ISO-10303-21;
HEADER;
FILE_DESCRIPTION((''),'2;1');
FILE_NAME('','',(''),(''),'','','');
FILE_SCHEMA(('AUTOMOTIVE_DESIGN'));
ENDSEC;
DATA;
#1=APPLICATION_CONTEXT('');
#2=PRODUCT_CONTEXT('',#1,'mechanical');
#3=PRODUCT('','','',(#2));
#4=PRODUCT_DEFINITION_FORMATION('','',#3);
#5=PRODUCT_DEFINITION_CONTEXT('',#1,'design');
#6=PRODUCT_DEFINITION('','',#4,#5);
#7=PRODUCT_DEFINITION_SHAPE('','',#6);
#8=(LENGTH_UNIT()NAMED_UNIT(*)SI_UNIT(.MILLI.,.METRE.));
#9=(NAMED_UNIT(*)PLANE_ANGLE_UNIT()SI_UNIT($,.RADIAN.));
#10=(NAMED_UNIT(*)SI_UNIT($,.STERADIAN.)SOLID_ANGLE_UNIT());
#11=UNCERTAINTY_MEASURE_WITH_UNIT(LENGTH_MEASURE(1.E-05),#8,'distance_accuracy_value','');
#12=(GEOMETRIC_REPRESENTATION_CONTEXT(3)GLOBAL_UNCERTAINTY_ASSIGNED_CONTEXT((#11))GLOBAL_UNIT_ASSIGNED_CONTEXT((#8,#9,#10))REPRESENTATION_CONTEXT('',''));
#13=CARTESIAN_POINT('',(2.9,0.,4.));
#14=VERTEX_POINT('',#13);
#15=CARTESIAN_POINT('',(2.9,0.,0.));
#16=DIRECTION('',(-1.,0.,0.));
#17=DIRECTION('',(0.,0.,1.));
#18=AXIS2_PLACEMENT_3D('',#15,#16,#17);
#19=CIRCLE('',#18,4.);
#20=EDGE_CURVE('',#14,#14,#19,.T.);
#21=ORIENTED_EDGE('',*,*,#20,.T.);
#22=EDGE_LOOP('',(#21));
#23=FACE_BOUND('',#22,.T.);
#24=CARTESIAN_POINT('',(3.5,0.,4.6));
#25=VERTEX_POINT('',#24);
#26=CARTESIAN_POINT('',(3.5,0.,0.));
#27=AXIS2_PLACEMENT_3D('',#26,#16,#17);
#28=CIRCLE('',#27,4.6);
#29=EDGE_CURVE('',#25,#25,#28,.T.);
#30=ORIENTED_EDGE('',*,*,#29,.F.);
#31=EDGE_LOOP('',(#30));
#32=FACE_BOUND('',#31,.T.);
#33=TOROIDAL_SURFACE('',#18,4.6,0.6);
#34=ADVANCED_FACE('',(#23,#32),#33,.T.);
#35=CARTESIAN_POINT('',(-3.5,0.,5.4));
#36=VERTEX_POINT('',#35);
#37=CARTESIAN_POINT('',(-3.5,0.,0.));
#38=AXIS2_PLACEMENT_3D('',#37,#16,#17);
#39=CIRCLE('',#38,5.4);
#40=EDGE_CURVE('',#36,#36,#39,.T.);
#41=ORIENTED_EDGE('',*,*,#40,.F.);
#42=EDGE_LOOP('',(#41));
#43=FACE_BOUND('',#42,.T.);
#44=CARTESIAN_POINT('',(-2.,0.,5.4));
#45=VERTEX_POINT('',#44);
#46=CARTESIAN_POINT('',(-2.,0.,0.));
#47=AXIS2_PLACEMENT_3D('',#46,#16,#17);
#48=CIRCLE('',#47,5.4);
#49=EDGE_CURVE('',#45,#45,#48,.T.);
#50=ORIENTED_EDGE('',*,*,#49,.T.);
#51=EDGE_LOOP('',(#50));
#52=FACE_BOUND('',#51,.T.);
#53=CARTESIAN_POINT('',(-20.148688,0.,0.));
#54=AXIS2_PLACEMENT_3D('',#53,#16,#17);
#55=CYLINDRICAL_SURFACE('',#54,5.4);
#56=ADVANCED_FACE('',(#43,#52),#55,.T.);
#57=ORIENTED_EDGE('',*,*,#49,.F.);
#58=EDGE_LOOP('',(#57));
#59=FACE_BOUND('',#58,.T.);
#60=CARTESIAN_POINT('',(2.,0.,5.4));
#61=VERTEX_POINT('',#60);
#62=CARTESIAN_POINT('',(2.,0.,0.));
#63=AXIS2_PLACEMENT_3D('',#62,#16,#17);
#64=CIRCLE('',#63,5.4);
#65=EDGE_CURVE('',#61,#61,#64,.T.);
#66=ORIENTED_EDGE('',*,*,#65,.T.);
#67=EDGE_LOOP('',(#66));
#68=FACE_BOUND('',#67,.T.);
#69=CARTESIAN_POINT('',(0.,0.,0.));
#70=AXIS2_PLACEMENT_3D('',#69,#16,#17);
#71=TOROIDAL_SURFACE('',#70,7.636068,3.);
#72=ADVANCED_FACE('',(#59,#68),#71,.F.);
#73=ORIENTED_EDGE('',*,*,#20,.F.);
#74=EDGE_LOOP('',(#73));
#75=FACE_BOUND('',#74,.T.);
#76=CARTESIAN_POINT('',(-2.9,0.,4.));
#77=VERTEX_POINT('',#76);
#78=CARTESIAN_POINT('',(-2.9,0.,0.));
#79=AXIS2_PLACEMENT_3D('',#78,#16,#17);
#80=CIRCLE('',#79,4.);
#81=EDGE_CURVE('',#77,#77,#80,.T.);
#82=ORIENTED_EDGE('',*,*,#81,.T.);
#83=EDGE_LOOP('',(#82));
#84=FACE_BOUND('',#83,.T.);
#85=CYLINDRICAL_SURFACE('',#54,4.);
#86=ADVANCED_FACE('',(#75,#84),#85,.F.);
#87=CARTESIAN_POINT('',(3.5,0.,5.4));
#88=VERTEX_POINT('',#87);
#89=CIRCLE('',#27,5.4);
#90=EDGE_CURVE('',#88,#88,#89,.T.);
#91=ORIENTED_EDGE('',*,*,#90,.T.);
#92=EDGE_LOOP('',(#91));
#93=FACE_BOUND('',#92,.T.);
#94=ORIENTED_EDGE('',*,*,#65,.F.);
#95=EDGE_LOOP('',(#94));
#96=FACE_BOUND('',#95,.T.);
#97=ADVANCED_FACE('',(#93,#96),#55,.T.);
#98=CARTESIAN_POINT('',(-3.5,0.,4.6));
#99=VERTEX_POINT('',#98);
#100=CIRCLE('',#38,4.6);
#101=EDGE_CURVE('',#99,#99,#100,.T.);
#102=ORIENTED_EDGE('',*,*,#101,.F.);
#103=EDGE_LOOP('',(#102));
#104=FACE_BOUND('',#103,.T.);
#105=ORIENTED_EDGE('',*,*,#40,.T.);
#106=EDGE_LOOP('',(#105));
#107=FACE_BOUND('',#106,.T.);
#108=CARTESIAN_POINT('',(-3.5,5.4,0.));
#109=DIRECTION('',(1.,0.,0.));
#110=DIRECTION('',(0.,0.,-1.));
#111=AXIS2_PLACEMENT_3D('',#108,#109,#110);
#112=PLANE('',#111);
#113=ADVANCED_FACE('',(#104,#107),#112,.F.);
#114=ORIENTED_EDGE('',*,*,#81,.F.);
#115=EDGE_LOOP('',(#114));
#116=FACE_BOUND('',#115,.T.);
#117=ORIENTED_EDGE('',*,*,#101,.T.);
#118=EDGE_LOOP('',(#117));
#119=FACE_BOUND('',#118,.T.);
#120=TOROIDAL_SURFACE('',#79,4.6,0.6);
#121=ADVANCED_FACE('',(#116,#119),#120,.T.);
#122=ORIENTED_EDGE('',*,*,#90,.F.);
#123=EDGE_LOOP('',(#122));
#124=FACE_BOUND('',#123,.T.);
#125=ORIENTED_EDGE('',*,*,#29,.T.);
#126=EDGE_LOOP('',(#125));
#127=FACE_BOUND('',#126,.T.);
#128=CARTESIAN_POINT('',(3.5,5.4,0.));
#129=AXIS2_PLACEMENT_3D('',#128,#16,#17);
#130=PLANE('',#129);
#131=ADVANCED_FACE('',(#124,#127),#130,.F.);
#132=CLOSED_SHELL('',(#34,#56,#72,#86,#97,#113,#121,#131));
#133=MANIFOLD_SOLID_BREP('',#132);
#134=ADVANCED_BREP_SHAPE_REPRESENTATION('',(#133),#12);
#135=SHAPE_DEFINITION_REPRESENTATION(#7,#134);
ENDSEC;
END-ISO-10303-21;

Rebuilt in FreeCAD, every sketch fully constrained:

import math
import FreeCAD as App
import Part
import Sketcher
Q = App.Units.Quantity

doc = App.newDocument("Part")
body = doc.addObject("PartDesign::Body", "Body")

sketch1 = body.newObject("Sketcher::SketchObject", "Sketch")
sketch1.AttachmentSupport = (doc.getObject("XY_Plane"), [""])
sketch1.MapMode = "FlatFace"
sketch1.addGeometry([
    Part.LineSegment(App.Vector(3.5, 4.6, 0), App.Vector(3.5, 5.4, 0)),
    Part.LineSegment(App.Vector(3.5, 5.4, 0), App.Vector(2, 5.4, 0)),
    Part.ArcOfCircle(Part.Circle(App.Vector(0, 7.636068, 0), App.Vector(0, 0, 1), 3), math.radians(-131.810315), math.radians(-48.189685)),
    Part.LineSegment(App.Vector(-2, 5.4, 0), App.Vector(-3.5, 5.4, 0)),
    Part.LineSegment(App.Vector(-3.5, 5.4, 0), App.Vector(-3.5, 4.6, 0)),
    Part.ArcOfCircle(Part.Circle(App.Vector(-2.9, 4.6, 0), App.Vector(0, 0, 1), 0.6), math.radians(180), math.radians(270)),
    Part.LineSegment(App.Vector(-2.9, 4, 0), App.Vector(2.9, 4, 0)),
    Part.ArcOfCircle(Part.Circle(App.Vector(2.9, 4.6, 0), App.Vector(0, 0, 1), 0.6), math.radians(-90), math.radians(0)),
], False)
sketch1.addConstraint([
    Sketcher.Constraint("Coincident", 0, 2, 1, 1),
    Sketcher.Constraint("Coincident", 1, 2, 2, 2),
    Sketcher.Constraint("Coincident", 2, 1, 3, 1),
    Sketcher.Constraint("Coincident", 3, 2, 4, 1),
    Sketcher.Constraint("Tangent", 4, 2, 5, 1),
    Sketcher.Constraint("Tangent", 5, 2, 6, 1),
    Sketcher.Constraint("Tangent", 6, 2, 7, 1),
    Sketcher.Constraint("Tangent", 7, 2, 0, 1),
    Sketcher.Constraint("Vertical", 0),
    Sketcher.Constraint("Horizontal", 1),
    Sketcher.Constraint("Horizontal", 3),
    Sketcher.Constraint("Vertical", 4),
    Sketcher.Constraint("Horizontal", 6),
    Sketcher.Constraint("Equal", 5, 7),
    Sketcher.Constraint("Symmetric", 1, 2, 2, 1, -2),
    Sketcher.Constraint("Equal", 1, 3),
    Sketcher.Constraint("Radius", 2, Q("3 mm")),
    Sketcher.Constraint("Radius", 5, Q("0.6 mm")),
    Sketcher.Constraint("DistanceX", 1, 2, 1, 1, Q("1.5 mm")),
    Sketcher.Constraint("DistanceX", 6, 1, 6, 2, Q("5.8 mm")),
    Sketcher.Constraint("DistanceY", 0, 1, 0, 2, Q("0.8 mm")),
    Sketcher.Constraint("DistanceY", -1, 1, 5, 2, Q("4 mm")),
])
revolution = body.newObject("PartDesign::Revolution", "Revolution")
revolution.Profile = sketch1
revolution.ReferenceAxis = (sketch1, ["H_Axis"])
revolution.Angle = 360

doc.recompute()
